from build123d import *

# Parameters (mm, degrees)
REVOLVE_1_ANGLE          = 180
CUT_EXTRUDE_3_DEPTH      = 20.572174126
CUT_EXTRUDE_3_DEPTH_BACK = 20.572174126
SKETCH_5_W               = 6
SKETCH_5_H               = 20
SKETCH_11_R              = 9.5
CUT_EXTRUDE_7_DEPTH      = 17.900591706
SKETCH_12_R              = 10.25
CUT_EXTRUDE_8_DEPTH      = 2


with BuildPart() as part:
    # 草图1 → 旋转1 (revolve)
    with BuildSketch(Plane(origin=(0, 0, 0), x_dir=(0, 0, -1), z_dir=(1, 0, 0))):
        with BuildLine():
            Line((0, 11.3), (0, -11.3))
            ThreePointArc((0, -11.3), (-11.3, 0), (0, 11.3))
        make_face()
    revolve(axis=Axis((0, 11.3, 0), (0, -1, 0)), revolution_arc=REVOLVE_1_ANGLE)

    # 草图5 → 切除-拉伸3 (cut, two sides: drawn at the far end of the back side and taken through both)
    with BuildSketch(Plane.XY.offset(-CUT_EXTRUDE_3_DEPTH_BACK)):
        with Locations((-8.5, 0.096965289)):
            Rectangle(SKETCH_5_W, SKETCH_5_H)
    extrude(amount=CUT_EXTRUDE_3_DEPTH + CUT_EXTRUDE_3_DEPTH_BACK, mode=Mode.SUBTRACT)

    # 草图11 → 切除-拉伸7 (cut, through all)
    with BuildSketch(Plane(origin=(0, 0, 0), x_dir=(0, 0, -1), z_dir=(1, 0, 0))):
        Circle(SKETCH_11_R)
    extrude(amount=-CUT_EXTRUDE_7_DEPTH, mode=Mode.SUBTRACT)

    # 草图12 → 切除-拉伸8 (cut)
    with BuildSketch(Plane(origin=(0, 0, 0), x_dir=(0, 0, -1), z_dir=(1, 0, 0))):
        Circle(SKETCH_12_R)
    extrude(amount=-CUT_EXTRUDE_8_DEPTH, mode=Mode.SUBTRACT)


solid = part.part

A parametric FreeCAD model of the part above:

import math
import FreeCAD as App
import Part
import Sketcher
from FreeCAD import Vector
Q = App.Units.Quantity


def add_polygon(sketch, points):
    """Adds a closed chain of lines whose ends are joined by coincident constraints."""
    first, n = sketch.GeometryCount, len(points)
    for a, b in zip(points, points[1:] + points[:1]):
        sketch.addGeometry(Part.LineSegment(App.Vector(*a, 0), App.Vector(*b, 0)), False)
    for i in range(n):
        sketch.addConstraint(Sketcher.Constraint("Coincident", first + i, 2, first + (i + 1) % n, 1))

doc = App.newDocument("Part")
body = doc.addObject("PartDesign::Body", "Body")

# Sketch on YZ plane
sketch1 = body.newObject("Sketcher::SketchObject", "Sketch")
sketch1.AttachmentSupport = (doc.getObject("YZ_Plane"), [""])
sketch1.MapMode = "FlatFace"
sketch1.addGeometry([
    Part.LineSegment(Vector(-11, 0, 0), Vector(11, 0, 0)),
    Part.ArcOfCircle(Part.Circle(Vector(0, 0, 0), Vector(0, 0, 1), 11), math.radians(0), math.radians(180)),
], False)
sketch1.addConstraint([
    Sketcher.Constraint("Coincident", 0, 1, 1, 2),
    Sketcher.Constraint("Coincident", 1, 1, 0, 2),
    Sketcher.Constraint("Horizontal", 0),
    Sketcher.Constraint("Coincident", 1, 3, -1, 1),
    Sketcher.Constraint("PointOnObject", 0, 1, -1),
    Sketcher.Constraint("Radius", 1, Q("11.3 mm")),
])
revolution = body.newObject("PartDesign::Revolution", "Revolution")
revolution.Profile = sketch1
revolution.ReferenceAxis = (sketch1, ["H_Axis"])
revolution.Angle = 180
revolution.Reversed = True

# Sketch on XY plane
sketch2 = body.newObject("Sketcher::SketchObject", "Sketch001")
sketch2.AttachmentSupport = (doc.getObject("XY_Plane"), [""])
sketch2.MapMode = "FlatFace"
add_polygon(sketch2, [(-12, 10), (-12, -10), (-6, -10), (-6, 10)])  # lines 0-3
sketch2.addConstraint([
    Sketcher.Constraint("Vertical", 0),
    Sketcher.Constraint("Horizontal", 1),
    Sketcher.Constraint("Vertical", 2),
    Sketcher.Constraint("Horizontal", 3),
    Sketcher.Constraint("DistanceX", 1, 1, 1, 2, Q("6 mm")),
    Sketcher.Constraint("DistanceY", 0, 2, 0, 1, Q("20 mm")),
    Sketcher.Constraint("DistanceX", 0, 2, -1, 1, Q("11.5 mm")),
    Sketcher.Constraint("DistanceY", 0, 2, -1, 1, Q("9.903035 mm")),
])
pocket1 = body.newObject("PartDesign::Pocket", "Pocket")
pocket1.Profile = sketch2
pocket1.Type = "ThroughAll"
pocket1.Midplane = True

# Sketch on YZ plane
sketch3 = body.newObject("Sketcher::SketchObject", "Sketch002")
sketch3.AttachmentSupport = (doc.getObject("YZ_Plane"), [""])
sketch3.MapMode = "FlatFace"
sketch3.addGeometry(Part.Circle(Vector(0, 0, 0), Vector(0, 0, 1), 10), False)
sketch3.addConstraint([
    Sketcher.Constraint("Coincident", 0, 3, -1, 1),
    Sketcher.Constraint("Diameter", 0, Q("19 mm")),
])
pocket2 = body.newObject("PartDesign::Pocket", "Pocket001")
pocket2.Profile = sketch3
pocket2.Type = "ThroughAll"

# Sketch on YZ plane
sketch4 = body.newObject("Sketcher::SketchObject", "Sketch003")
sketch4.AttachmentSupport = (doc.getObject("YZ_Plane"), [""])
sketch4.MapMode = "FlatFace"
sketch4.addGeometry(Part.Circle(Vector(0, 0, 0), Vector(0, 0, 1), 10), False)
sketch4.addConstraint([
    Sketcher.Constraint("Coincident", 0, 3, -1, 1),
    Sketcher.Constraint("Diameter", 0, Q("20.5 mm")),
])
pocket3 = body.newObject("PartDesign::Pocket", "Pocket002")
pocket3.Profile = sketch4
pocket3.Length = 2

doc.recompute()
